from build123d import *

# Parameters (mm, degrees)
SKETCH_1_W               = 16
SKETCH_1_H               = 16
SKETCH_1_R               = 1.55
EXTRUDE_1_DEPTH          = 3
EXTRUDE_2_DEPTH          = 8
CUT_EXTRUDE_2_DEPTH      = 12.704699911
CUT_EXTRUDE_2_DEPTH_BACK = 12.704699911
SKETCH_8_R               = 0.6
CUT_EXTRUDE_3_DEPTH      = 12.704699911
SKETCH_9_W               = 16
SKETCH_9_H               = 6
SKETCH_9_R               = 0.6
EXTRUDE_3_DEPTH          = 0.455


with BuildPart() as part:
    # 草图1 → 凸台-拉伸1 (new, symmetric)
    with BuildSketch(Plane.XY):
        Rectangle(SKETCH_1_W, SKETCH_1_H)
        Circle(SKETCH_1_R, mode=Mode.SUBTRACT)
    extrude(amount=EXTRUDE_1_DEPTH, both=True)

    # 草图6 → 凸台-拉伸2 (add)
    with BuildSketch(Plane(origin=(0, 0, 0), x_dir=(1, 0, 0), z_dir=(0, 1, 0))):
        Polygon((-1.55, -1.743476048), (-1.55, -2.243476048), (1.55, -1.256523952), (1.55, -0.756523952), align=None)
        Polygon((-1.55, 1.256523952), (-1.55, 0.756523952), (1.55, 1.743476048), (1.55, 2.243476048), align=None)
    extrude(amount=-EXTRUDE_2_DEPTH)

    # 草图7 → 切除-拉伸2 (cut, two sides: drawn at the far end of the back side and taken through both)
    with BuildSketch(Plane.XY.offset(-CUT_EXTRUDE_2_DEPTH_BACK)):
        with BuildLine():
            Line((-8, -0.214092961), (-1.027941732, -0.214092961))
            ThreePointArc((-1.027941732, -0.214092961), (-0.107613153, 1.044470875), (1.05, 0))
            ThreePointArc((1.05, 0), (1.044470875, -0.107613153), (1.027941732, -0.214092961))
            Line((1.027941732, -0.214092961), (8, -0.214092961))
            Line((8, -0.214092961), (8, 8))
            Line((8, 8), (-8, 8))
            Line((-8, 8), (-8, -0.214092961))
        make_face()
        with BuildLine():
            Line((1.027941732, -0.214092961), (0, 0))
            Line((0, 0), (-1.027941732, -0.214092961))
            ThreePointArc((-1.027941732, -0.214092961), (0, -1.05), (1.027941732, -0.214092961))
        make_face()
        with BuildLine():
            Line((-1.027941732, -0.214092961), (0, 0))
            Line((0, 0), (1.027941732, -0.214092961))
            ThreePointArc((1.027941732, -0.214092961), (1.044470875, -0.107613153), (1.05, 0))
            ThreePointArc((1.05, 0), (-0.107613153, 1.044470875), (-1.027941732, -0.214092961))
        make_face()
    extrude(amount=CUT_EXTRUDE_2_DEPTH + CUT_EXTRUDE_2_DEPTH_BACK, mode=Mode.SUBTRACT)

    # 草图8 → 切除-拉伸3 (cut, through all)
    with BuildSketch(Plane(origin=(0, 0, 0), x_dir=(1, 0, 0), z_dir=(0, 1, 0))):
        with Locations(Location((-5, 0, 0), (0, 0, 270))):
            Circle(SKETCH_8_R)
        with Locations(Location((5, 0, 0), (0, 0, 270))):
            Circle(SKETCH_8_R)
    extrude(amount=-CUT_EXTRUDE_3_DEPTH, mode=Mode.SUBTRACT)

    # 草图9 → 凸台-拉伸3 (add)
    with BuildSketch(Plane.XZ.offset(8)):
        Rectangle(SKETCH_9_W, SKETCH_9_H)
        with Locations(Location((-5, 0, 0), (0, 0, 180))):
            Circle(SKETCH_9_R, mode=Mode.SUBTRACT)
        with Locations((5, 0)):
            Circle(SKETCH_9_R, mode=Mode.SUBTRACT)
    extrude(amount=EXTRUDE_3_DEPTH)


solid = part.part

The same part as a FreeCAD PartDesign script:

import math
import FreeCAD as App
import Part
import Sketcher

V = App.Vector
Q = App.Units.Quantity

doc = App.newDocument("Part")
body = doc.addObject("PartDesign::Body", "Body")

# Sketch on XY plane
sketch1 = doc.addObject("Sketcher::SketchObject", "Sketch")
body.addObject(sketch1)
sketch1.AttachmentSupport = (doc.XY_Plane, [""])
sketch1.MapMode = "FlatFace"
sketch1.addGeometry([
    Part.LineSegment(V(-8, 8, 0), V(-8, -8, 0)),  # 0
    Part.LineSegment(V(-8, -8, 0), V(8, -8, 0)),  # 1
    Part.LineSegment(V(8, -8, 0), V(8, 8, 0)),  # 2
    Part.LineSegment(V(8, 8, 0), V(-8, 8, 0)),  # 3
    Part.Circle(V(0, 0, 0), V(0, 0, 1), 1.6),  # 4
], False)
sketch1.addConstraint([
    Sketcher.Constraint("Coincident", 0, 2, 1, 1),
    Sketcher.Constraint("Coincident", 1, 2, 2, 1),
    Sketcher.Constraint("Coincident", 2, 2, 3, 1),
    Sketcher.Constraint("Coincident", 3, 2, 0, 1),
    Sketcher.Constraint("Vertical", 0),
    Sketcher.Constraint("Horizontal", 1),
    Sketcher.Constraint("Vertical", 2),
    Sketcher.Constraint("Horizontal", 3),
    Sketcher.Constraint("Coincident", 4, 3, -1, 1),
    Sketcher.Constraint("Symmetric", 0, 2, 2, 2, -1, 1),
    Sketcher.Constraint("Equal", 3, 0),
    Sketcher.Constraint("Diameter", 4, 3.1),
    Sketcher.Constraint("DistanceX", 1, 1, 1, 2, 16.0),
])
pad1 = doc.addObject("PartDesign::Pad", "Pad")
body.addObject(pad1)
pad1.Profile = sketch1
pad1.Length = 6
pad1.Midplane = True

# Sketch on XZ plane
sketch2 = doc.addObject("Sketcher::SketchObject", "Sketch001")
body.addObject(sketch2)
sketch2.AttachmentSupport = (doc.XZ_Plane, [""])
sketch2.MapMode = "FlatFace"
sketch2.addGeometry([
    Part.LineSegment(V(-1.55, 1.74, 0), V(-1.55, 2.24, 0)),  # 0
    Part.LineSegment(V(-1.55, 2.24, 0), V(1.55, 1.26, 0)),  # 1
    Part.LineSegment(V(1.55, 1.26, 0), V(1.55, 0.76, 0)),  # 2
    Part.LineSegment(V(1.55, 0.76, 0), V(-1.55, 1.74, 0)),  # 3
    Part.LineSegment(V(-1.55, -1.26, 0), V(-1.55, -0.76, 0)),  # 4
    Part.LineSegment(V(-1.55, -0.76, 0), V(1.55, -1.74, 0)),  # 5
    Part.LineSegment(V(1.55, -1.74, 0), V(1.55, -2.24, 0)),  # 6
    Part.LineSegment(V(1.55, -2.24, 0), V(-1.55, -1.26, 0)),  # 7
], False)
sketch2.addConstraint([
    Sketcher.Constraint("Coincident", 0, 2, 1, 1),
    Sketcher.Constraint("Coincident", 1, 2, 2, 1),
    Sketcher.Constraint("Coincident", 2, 2, 3, 1),
    Sketcher.Constraint("Coincident", 3, 2, 0, 1),
    Sketcher.Constraint("Coincident", 4, 2, 5, 1),
    Sketcher.Constraint("Coincident", 5, 2, 6, 1),
    Sketcher.Constraint("Coincident", 6, 2, 7, 1),
    Sketcher.Constraint("Coincident", 7, 2, 4, 1),
    Sketcher.Constraint("Vertical", 0),
    Sketcher.Constraint("Vertical", 2),
    Sketcher.Constraint("Vertical", 4),
    Sketcher.Constraint("Vertical", 6),
    Sketcher.Constraint("Symmetric", 2, 2, 4, 2, -1, 1),
    Sketcher.Constraint("Symmetric", 3, 2, 5, 2, -1, 1),
    Sketcher.Constraint("Parallel", 1, 3),
    Sketcher.Constraint("Parallel", 5, 7),
    Sketcher.Constraint("Vertical", 3, 2, 4, 2),
    Sketcher.Constraint("Equal", 2, 4),
    Sketcher.Constraint("DistanceY", 0, 1, 0, 2, 0.5),
    Sketcher.Constraint("DistanceY", 4, 2, 0, 2, 3.0),
    Sketcher.Constraint("Angle", 1, Q("-17.66 deg")),
    Sketcher.Constraint("DistanceX", 0, 2, 1, 2, 3.1),
])
pad2 = doc.addObject("PartDesign::Pad", "Pad001")
body.addObject(pad2)
pad2.Profile = sketch2
pad2.Length = 8

# Sketch on XY plane
sketch3 = doc.addObject("Sketcher::SketchObject", "Sketch002")
body.addObject(sketch3)
sketch3.AttachmentSupport = (doc.XY_Plane, [""])
sketch3.MapMode = "FlatFace"
sketch3.addGeometry([
    Part.LineSegment(V(8, 8, 0), V(-8, 8, 0)),  # 0
    Part.LineSegment(V(-8, 8, 0), V(-8, -0.2, 0)),  # 1
    Part.LineSegment(V(-8, -0.2, 0), V(-1, -0.2, 0)),  # 2
    Part.ArcOfCircle(Part.Circle(V(0, 0, 0), V(0, 0, 1), 1.1), math.radians(-168), math.radians(-12)),  # 3
    Part.LineSegment(V(1, -0.2, 0), V(8, -0.2, 0)),  # 4
    Part.LineSegment(V(8, -0.2, 0), V(8, 8, 0)),  # 5
], False)
sketch3.addConstraint([
    Sketcher.Constraint("Coincident", 0, 2, 1, 1),
    Sketcher.Constraint("Coincident", 1, 2, 2, 1),
    Sketcher.Constraint("Coincident", 2, 2, 3, 1),
    Sketcher.Constraint("Coincident", 3, 2, 4, 1),
    Sketcher.Constraint("Coincident", 4, 2, 5, 1),
    Sketcher.Constraint("Coincident", 5, 2, 0, 1),
    Sketcher.Constraint("Horizontal", 0),
    Sketcher.Constraint("Vertical", 1),
    Sketcher.Constraint("Horizontal", 2),
    Sketcher.Constraint("Horizontal", 4),
    Sketcher.Constraint("Vertical", 5),
    Sketcher.Constraint("Coincident", 3, 3, -1, 1),
    Sketcher.Constraint("Symmetric", 1, 2, 4, 2, -2),
    Sketcher.Constraint("DistanceX", 0, 2, 0, 1, 16.0),
    Sketcher.Constraint("Radius", 3, 1.05),
    Sketcher.Constraint("DistanceY", -1, 1, 0, 2, 8.0),
    Sketcher.Constraint("DistanceX", 2, 1, 2, 2, 6.972058),
])
pocket1 = doc.addObject("PartDesign::Pocket", "Pocket")
body.addObject(pocket1)
pocket1.Profile = sketch3
pocket1.Type = "ThroughAll"
pocket1.Midplane = True

# Sketch on XZ plane
sketch4 = doc.addObject("Sketcher::SketchObject", "Sketch003")
body.addObject(sketch4)
sketch4.AttachmentSupport = (doc.XZ_Plane, [""])
sketch4.MapMode = "FlatFace"
sketch4.addGeometry([
    Part.Circle(V(-5, 0, 0), V(0, 0, 1), 0.6),
    Part.Circle(V(5, 0, 0), V(0, 0, 1), 0.6),
], False)
sketch4.addConstraint([
    Sketcher.Constraint("Equal", 0, 1),
    Sketcher.Constraint("Symmetric", 0, 3, 1, 3, -1, 1),
    Sketcher.Constraint("PointOnObject", 0, 3, -1),
    Sketcher.Constraint("Diameter", 0, 1.2),
    Sketcher.Constraint("DistanceX", 0, 3, -1, 1, 5.0),
])
pocket2 = doc.addObject("PartDesign::Pocket", "Pocket001")
body.addObject(pocket2)
pocket2.Profile = sketch4
pocket2.Type = "ThroughAll"
pocket2.Reversed = True

# Sketch on XZ plane
sketch5 = doc.addObject("Sketcher::SketchObject", "Sketch004")
body.addObject(sketch5)
sketch5.AttachmentSupport = (doc.XZ_Plane, [""])
sketch5.MapMode = "FlatFace"
sketch5.AttachmentOffset = App.Placement(V(0, 0, 8), App.Rotation())
sketch5.addGeometry([
    Part.LineSegment(V(-8, 3, 0), V(-8, -3, 0)),  # 0
    Part.LineSegment(V(-8, -3, 0), V(8, -3, 0)),  # 1
    Part.LineSegment(V(8, -3, 0), V(8, 3, 0)),  # 2
    Part.LineSegment(V(8, 3, 0), V(-8, 3, 0)),  # 3
    Part.Circle(V(-5, 0, 0), V(0, 0, 1), 0.6),  # 4
    Part.Circle(V(5, 0, 0), V(0, 0, 1), 0.6),  # 5
], False)
sketch5.addConstraint([
    Sketcher.Constraint("Coincident", 0, 2, 1, 1),
    Sketcher.Constraint("Coincident", 1, 2, 2, 1),
    Sketcher.Constraint("Coincident", 2, 2, 3, 1),
    Sketcher.Constraint("Coincident", 3, 2, 0, 1),
    Sketcher.Constraint("Vertical", 0),
    Sketcher.Constraint("Horizontal", 1),
    Sketcher.Constraint("Vertical", 2),
    Sketcher.Constraint("Horizontal", 3),
    Sketcher.Constraint("Equal", 4, 5),
    Sketcher.Constraint("Symmetric", 4, 3, 5, 3, -1, 1),
    Sketcher.Constraint("Symmetric", 0, 2, 2, 2, -1, 1),
    Sketcher.Constraint("PointOnObject", 4, 3, -1),
    Sketcher.Constraint("Diameter", 4, 1.2),
    Sketcher.Constraint("DistanceX", 1, 1, 1, 2, 16.0),
    Sketcher.Constraint("DistanceY", 0, 2, 0, 1, 6.0),
    Sketcher.Constraint("DistanceX", 4, 3, -1, 1, 5.0),
])
pad3 = doc.addObject("PartDesign::Pad", "Pad002")
body.addObject(pad3)
pad3.Profile = sketch5
pad3.Length = 0.455

doc.recompute()
